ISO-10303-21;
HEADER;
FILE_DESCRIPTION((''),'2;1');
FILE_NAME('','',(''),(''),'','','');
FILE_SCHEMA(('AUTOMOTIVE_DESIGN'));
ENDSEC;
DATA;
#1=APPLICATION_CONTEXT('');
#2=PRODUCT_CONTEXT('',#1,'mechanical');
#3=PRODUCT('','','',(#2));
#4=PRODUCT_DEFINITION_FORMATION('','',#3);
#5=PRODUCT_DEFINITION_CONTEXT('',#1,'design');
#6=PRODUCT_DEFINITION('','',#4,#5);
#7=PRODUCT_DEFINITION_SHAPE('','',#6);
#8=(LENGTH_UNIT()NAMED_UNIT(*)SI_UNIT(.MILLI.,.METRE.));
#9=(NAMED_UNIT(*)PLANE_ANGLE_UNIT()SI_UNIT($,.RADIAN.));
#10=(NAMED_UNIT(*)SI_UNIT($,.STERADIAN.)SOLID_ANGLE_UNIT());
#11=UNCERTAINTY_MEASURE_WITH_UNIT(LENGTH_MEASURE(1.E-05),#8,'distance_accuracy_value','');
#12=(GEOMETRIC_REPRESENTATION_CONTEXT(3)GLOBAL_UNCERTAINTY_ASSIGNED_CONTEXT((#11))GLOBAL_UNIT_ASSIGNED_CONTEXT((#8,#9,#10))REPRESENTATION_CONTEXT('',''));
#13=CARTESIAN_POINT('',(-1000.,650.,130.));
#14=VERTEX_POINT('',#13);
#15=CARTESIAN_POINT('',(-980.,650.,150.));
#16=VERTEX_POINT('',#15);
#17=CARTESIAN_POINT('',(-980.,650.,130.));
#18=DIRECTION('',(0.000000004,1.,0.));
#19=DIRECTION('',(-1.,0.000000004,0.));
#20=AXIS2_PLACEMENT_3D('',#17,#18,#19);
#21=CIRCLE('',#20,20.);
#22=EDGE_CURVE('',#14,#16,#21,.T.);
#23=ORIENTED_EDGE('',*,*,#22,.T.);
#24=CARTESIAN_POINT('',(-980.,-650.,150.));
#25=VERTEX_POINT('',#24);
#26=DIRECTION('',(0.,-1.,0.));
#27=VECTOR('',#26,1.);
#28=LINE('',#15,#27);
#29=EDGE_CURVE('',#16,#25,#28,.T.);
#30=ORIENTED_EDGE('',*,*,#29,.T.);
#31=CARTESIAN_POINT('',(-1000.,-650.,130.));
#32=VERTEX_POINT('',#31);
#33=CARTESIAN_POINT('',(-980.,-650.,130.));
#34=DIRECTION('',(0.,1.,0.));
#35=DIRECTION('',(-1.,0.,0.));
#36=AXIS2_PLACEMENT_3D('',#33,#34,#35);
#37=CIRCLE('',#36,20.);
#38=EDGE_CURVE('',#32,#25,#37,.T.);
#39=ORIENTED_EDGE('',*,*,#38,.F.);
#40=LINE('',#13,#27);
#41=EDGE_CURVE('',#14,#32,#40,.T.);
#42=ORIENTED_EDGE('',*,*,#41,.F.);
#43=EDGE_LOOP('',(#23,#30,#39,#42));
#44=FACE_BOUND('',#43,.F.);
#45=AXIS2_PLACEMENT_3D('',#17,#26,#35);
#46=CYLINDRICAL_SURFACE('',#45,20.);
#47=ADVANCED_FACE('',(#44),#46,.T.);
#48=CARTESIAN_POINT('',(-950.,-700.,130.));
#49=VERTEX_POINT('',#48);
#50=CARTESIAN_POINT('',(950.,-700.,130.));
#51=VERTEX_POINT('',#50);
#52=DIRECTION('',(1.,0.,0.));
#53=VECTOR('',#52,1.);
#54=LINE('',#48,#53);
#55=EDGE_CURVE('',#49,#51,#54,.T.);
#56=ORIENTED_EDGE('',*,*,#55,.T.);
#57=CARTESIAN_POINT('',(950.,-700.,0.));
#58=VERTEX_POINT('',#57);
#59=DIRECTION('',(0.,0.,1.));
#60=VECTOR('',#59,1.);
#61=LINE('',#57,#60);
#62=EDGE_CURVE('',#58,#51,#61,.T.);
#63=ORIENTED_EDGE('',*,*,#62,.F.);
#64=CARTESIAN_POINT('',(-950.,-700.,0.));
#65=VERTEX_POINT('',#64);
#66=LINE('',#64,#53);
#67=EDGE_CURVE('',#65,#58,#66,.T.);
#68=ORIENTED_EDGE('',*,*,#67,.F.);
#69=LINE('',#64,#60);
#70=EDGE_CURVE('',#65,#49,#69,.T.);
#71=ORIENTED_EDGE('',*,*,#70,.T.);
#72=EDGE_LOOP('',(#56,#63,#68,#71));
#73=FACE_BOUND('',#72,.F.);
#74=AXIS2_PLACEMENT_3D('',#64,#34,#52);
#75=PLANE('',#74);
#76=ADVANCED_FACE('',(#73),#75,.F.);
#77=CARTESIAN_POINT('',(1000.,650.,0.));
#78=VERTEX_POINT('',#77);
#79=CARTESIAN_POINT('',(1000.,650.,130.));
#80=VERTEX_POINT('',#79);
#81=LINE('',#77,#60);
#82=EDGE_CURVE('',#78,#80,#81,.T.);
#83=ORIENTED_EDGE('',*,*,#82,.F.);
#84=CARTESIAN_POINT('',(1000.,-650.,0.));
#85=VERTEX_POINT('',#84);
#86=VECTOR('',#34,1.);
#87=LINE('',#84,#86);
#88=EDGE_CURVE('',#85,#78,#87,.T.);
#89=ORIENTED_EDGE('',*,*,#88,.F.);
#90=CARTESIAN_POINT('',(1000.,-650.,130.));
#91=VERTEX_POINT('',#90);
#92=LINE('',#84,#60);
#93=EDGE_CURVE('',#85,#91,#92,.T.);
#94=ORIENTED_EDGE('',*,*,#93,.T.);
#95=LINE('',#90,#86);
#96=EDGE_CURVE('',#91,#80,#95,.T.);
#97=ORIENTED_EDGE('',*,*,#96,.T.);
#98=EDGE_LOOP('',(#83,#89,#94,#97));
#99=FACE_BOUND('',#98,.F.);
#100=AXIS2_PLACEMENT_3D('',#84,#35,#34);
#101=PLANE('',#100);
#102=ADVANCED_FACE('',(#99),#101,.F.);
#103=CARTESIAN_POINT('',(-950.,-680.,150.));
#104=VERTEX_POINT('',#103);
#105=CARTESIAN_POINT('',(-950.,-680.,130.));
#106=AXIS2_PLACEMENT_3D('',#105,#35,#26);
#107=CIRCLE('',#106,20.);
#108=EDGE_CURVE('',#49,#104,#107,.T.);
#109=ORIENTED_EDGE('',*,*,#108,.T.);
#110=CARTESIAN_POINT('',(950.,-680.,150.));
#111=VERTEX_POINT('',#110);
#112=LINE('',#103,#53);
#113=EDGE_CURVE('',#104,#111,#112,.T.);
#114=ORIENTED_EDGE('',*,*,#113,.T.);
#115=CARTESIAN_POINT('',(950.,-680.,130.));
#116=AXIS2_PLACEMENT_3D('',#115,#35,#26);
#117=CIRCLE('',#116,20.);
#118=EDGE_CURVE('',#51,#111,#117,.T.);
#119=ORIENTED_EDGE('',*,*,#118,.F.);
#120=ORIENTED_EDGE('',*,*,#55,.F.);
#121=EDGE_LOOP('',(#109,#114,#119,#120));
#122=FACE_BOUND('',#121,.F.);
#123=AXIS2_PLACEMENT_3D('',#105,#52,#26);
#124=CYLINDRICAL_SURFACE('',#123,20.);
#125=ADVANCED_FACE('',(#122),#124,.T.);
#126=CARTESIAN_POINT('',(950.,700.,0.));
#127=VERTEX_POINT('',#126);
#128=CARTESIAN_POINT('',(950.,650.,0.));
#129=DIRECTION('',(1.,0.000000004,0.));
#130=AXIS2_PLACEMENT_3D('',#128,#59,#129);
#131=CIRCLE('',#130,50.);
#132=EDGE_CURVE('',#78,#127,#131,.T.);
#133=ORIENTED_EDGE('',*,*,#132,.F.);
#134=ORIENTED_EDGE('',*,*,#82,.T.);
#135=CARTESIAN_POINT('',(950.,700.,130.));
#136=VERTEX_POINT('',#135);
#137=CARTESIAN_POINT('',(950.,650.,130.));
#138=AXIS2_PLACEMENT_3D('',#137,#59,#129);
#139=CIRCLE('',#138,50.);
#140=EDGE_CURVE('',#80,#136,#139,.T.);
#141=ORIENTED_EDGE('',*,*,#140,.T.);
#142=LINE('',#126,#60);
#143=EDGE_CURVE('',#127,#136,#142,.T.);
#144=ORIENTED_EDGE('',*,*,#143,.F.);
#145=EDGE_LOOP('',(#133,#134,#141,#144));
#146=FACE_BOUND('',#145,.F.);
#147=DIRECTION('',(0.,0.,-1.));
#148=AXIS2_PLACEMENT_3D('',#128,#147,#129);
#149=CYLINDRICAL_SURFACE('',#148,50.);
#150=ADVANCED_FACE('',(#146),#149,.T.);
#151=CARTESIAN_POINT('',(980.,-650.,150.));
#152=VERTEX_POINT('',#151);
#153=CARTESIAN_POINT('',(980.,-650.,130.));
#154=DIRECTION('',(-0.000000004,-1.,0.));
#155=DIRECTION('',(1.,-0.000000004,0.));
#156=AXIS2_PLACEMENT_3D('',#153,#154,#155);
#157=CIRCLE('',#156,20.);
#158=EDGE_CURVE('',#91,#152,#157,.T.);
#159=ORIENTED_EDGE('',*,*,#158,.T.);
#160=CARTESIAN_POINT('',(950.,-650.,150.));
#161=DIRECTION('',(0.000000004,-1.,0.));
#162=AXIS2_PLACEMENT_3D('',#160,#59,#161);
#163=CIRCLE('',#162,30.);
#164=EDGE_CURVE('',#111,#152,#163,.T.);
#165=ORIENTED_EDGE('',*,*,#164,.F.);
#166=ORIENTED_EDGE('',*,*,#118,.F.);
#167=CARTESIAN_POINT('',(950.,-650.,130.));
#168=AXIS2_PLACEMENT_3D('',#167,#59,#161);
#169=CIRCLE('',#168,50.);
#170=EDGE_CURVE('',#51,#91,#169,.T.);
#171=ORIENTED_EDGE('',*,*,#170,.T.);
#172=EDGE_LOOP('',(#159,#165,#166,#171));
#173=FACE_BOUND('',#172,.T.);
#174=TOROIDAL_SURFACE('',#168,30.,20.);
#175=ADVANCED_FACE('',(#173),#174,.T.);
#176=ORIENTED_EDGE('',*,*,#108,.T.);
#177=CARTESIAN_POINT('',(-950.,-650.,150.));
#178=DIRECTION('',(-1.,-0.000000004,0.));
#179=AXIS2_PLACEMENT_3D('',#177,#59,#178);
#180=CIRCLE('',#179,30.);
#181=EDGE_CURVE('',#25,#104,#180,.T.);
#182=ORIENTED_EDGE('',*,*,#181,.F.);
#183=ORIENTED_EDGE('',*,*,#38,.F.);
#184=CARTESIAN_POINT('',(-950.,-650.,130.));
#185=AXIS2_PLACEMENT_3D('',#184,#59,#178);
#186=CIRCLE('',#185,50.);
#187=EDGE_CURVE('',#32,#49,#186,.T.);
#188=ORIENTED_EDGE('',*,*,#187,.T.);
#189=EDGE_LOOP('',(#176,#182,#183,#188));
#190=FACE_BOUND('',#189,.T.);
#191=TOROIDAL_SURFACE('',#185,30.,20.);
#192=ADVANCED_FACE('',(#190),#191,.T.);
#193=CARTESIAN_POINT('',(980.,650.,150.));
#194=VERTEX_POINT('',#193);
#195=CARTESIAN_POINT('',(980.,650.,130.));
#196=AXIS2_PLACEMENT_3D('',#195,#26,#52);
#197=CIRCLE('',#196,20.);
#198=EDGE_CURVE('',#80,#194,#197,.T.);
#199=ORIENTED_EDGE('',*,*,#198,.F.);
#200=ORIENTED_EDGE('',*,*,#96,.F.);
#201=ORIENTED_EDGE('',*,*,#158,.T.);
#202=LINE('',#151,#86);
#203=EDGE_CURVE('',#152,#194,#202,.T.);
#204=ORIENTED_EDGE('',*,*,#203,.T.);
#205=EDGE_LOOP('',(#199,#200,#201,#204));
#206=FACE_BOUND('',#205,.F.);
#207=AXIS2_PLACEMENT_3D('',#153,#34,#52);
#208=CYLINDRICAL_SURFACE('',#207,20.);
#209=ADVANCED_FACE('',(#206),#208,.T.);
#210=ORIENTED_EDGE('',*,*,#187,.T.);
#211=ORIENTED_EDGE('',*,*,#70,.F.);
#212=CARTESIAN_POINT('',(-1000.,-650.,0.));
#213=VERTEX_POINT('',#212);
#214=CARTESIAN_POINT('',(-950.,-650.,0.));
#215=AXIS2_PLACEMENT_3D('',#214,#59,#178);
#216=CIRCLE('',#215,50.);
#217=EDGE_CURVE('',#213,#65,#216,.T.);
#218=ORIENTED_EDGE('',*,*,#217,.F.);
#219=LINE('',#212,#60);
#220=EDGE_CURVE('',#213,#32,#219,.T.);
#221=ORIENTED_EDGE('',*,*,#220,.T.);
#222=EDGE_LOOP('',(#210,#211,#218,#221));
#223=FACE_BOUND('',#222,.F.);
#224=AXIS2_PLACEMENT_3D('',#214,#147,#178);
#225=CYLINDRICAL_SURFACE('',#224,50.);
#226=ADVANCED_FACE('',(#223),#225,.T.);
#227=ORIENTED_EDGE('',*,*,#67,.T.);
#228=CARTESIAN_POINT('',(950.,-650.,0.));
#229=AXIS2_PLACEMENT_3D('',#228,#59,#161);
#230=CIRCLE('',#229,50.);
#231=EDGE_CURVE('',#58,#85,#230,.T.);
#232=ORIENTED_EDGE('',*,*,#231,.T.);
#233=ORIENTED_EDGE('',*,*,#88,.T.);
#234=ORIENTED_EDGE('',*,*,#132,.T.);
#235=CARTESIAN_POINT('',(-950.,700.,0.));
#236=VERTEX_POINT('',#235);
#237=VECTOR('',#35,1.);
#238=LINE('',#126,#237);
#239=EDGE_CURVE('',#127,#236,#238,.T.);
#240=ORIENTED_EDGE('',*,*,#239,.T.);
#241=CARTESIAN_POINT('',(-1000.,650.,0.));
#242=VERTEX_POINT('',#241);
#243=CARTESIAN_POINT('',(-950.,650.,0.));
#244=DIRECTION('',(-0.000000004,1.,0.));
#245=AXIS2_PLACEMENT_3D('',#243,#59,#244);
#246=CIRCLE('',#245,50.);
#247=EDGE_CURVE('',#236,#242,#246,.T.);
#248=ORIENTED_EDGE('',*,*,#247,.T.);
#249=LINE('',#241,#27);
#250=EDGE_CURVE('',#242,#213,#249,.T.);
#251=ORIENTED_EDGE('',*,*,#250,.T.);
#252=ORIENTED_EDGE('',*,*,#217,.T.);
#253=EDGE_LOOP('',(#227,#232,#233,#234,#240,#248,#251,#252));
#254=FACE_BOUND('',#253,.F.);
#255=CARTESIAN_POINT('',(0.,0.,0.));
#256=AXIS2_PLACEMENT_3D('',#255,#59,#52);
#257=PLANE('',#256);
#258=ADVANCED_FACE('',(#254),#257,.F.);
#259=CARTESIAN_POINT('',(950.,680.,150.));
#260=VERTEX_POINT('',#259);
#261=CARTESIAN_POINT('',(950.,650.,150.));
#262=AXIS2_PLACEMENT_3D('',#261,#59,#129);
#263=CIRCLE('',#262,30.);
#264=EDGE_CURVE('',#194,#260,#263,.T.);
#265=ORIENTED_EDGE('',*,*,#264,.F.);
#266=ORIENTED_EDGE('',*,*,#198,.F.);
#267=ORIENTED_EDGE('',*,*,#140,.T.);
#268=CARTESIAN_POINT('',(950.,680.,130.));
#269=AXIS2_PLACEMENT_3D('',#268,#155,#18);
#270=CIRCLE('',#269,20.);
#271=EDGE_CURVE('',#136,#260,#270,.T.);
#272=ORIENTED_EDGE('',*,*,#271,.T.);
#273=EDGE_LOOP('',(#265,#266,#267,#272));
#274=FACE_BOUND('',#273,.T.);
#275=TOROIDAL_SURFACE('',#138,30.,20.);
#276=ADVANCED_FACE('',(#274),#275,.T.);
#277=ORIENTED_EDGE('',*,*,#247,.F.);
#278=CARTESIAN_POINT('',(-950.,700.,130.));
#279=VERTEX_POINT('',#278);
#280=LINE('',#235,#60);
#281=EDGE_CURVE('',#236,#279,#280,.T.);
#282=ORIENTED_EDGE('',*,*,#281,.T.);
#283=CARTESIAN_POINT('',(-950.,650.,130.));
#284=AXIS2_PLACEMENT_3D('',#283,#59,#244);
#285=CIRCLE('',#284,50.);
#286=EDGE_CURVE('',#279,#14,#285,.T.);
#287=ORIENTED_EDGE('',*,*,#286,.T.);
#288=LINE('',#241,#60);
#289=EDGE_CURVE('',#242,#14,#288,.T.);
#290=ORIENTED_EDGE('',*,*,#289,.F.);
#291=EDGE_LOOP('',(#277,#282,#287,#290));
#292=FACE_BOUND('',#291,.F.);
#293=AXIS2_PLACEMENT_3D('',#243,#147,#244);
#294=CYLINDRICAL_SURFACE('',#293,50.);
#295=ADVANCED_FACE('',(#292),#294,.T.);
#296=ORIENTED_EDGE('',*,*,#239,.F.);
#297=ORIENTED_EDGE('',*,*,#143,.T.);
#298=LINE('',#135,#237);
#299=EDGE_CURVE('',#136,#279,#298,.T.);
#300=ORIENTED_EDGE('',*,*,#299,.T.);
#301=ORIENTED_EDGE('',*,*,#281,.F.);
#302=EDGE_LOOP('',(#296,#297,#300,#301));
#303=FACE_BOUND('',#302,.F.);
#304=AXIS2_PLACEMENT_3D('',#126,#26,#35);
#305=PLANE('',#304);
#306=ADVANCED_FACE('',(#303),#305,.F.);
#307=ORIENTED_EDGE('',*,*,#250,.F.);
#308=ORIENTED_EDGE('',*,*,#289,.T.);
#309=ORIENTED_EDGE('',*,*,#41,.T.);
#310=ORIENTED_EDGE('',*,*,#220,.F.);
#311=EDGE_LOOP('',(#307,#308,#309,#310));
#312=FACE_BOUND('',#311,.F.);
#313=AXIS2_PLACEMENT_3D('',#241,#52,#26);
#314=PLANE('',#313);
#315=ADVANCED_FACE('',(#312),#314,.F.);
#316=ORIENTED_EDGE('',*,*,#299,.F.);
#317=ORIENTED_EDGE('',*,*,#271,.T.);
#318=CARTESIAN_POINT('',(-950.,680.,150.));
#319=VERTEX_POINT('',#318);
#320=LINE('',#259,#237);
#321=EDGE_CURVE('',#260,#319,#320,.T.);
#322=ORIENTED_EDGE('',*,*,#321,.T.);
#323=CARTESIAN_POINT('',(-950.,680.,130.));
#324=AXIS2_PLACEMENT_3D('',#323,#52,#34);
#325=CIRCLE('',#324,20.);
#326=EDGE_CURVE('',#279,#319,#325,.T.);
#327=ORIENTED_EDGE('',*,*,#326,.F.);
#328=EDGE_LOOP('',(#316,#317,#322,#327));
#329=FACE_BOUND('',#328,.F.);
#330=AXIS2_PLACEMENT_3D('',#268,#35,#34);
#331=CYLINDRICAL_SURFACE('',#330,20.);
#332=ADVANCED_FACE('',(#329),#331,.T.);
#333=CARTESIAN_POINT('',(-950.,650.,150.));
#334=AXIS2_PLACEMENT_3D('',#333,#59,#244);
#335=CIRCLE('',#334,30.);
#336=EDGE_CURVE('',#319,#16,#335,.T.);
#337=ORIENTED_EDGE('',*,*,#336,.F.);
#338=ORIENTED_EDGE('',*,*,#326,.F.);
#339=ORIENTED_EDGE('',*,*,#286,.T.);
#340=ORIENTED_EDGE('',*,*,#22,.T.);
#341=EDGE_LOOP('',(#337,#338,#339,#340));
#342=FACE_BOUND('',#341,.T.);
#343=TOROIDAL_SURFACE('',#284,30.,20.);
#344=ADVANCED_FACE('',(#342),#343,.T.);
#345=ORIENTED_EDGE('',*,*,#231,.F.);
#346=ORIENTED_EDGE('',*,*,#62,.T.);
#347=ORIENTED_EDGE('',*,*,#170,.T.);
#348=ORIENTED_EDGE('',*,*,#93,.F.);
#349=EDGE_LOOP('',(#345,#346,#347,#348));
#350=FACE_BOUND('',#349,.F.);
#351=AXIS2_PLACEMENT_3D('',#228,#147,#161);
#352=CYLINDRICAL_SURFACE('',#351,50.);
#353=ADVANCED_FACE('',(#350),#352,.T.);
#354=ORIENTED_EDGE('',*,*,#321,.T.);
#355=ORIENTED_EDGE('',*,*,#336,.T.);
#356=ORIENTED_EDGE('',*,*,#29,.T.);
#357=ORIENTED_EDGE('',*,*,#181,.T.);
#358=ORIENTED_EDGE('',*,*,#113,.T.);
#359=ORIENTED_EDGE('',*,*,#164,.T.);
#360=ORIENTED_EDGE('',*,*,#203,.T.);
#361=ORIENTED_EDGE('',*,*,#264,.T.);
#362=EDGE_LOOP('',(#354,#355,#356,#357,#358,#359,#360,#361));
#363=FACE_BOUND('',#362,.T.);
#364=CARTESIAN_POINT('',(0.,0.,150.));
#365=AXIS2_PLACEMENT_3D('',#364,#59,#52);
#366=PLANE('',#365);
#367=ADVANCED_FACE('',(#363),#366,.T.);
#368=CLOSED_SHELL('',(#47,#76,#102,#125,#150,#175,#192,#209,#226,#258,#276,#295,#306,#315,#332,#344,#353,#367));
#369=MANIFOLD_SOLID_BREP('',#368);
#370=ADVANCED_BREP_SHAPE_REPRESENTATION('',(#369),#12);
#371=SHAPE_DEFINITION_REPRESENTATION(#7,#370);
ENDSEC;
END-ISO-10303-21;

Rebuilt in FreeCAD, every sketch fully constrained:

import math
import FreeCAD as App
import Part
import Sketcher
Q = App.Units.Quantity


def edges_at(feature, points):
    """Names of the edges that pass closest to the given points."""
    edges = feature.Shape.Edges
    near = lambda p: min(range(len(edges)), key=lambda i: edges[i].distToShape(Part.Vertex(*p))[0])
    return sorted({f"Edge{near(p) + 1}" for p in points})

doc = App.newDocument("Part")
params = doc.addObject("Spreadsheet::Sheet", "Params")
for row, (alias, value) in enumerate([
    ("sketch1_radius", "50 mm"),
    ("sketch1_width", "1900 mm"),
    ("sketch1_height", "1300 mm"),
    ("pad1_length", "150 mm"),
    ("fillet_radius", "20 mm"),
], start=1):
    params.set(f"A{row}", alias)
    params.set(f"B{row}", "=" + value)
    params.setAlias(f"B{row}", alias)

body = doc.addObject("PartDesign::Body", "Body")

# Sketch on XY plane
sketch1 = body.newObject("Sketcher::SketchObject", "Sketch")
sketch1.AttachmentSupport = (doc.getObject("XY_Plane"), [""])
sketch1.MapMode = "FlatFace"
sketch1.addGeometry(Part.LineSegment(App.Vector(950, 700, 0), App.Vector(-950, 700, 0)), False)
sketch1.addGeometry(Part.ArcOfCircle(Part.Circle(App.Vector(-950, 650, 0), App.Vector(0, 0, 1), 50), math.radians(90), math.radians(180)), False)
sketch1.addGeometry(Part.LineSegment(App.Vector(-1000, 650, 0), App.Vector(-1000, -650, 0)), False)
sketch1.addGeometry(Part.ArcOfCircle(Part.Circle(App.Vector(-950, -650, 0), App.Vector(0, 0, 1), 50), math.radians(-180), math.radians(-90)), False)
sketch1.addGeometry(Part.LineSegment(App.Vector(-950, -700, 0), App.Vector(950, -700, 0)), False)
sketch1.addGeometry(Part.ArcOfCircle(Part.Circle(App.Vector(950, -650, 0), App.Vector(0, 0, 1), 50), math.radians(-90), math.radians(0)), False)
sketch1.addGeometry(Part.LineSegment(App.Vector(1000, -650, 0), App.Vector(1000, 650, 0)), False)
sketch1.addGeometry(Part.ArcOfCircle(Part.Circle(App.Vector(950, 650, 0), App.Vector(0, 0, 1), 50), math.radians(0), math.radians(90)), False)
sketch1.addConstraint(Sketcher.Constraint("Tangent", 0, 2, 1, 1))
sketch1.addConstraint(Sketcher.Constraint("Tangent", 1, 2, 2, 1))
sketch1.addConstraint(Sketcher.Constraint("Tangent", 2, 2, 3, 1))
sketch1.addConstraint(Sketcher.Constraint("Tangent", 3, 2, 4, 1))
sketch1.addConstraint(Sketcher.Constraint("Tangent", 4, 2, 5, 1))
sketch1.addConstraint(Sketcher.Constraint("Tangent", 5, 2, 6, 1))
sketch1.addConstraint(Sketcher.Constraint("Tangent", 6, 2, 7, 1))
sketch1.addConstraint(Sketcher.Constraint("Tangent", 7, 2, 0, 1))
sketch1.addConstraint(Sketcher.Constraint("Horizontal", 0))
sketch1.addConstraint(Sketcher.Constraint("Vertical", 2))
sketch1.addConstraint(Sketcher.Constraint("Horizontal", 4))
sketch1.addConstraint(Sketcher.Constraint("Vertical", 6))
sketch1.addConstraint(Sketcher.Constraint("Equal", 1, 3))
sketch1.addConstraint(Sketcher.Constraint("Equal", 3, 5))
sketch1.addConstraint(Sketcher.Constraint("Equal", 5, 7))
sketch1.addConstraint(Sketcher.Constraint("Symmetric", 1, 3, 5, 3, -1, 1))
sketch1.addConstraint(Sketcher.Constraint("Radius", 1, Q("50 mm")))
sketch1.addConstraint(Sketcher.Constraint("DistanceX", 0, 2, 0, 1, Q("1900 mm")))
sketch1.addConstraint(Sketcher.Constraint("DistanceY", 2, 2, 2, 1, Q("1300 mm")))
sketch1.setExpression("Constraints[16]", "Params.sketch1_radius")
sketch1.setExpression("Constraints[17]", "Params.sketch1_width")
sketch1.setExpression("Constraints[18]", "Params.sketch1_height")
pad1 = body.newObject("PartDesign::Pad", "Pad")
pad1.Profile = sketch1
pad1.setExpression("Length", "Params.pad1_length")
doc.recompute()

fillet = body.newObject("PartDesign::Fillet", "Fillet")
fillet.Base = (pad1, edges_at(pad1, [
    (0, -700, 150),
    (-985.355, -685.355, 150),
    (-1000, 0, 150),
    (0, 700, 150),
    (985.355, 685.355, 150),
    (985.355, -685.355, 150),
    (1000, 0, 150),
]))
fillet.setExpression("Radius", "Params.fillet_radius")

doc.recompute()
